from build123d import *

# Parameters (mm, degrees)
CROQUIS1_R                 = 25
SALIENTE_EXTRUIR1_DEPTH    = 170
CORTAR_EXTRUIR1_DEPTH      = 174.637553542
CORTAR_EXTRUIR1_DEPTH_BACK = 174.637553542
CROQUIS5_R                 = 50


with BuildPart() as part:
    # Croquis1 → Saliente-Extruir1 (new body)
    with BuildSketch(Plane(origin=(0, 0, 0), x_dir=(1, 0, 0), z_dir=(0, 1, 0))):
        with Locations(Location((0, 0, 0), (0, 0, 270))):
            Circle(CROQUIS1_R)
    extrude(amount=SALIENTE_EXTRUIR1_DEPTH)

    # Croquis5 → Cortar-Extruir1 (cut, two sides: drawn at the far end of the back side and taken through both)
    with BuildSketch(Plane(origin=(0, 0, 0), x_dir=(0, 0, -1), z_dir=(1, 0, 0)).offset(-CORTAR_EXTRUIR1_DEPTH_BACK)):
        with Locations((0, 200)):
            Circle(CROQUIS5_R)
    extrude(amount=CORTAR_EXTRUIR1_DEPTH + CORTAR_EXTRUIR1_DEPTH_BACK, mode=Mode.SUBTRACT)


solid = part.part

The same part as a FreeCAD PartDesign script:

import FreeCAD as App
import Part
import Sketcher
Q = App.Units.Quantity

doc = App.newDocument("Part")
body = doc.addObject("PartDesign::Body", "Body")

# Sketch on XZ plane
sketch1 = body.newObject("Sketcher::SketchObject", "Sketch")
sketch1.AttachmentSupport = (doc.getObject("XZ_Plane"), [""])
sketch1.MapMode = "FlatFace"
sketch1.addGeometry(Part.Circle(App.Vector(0, 0, 0), App.Vector(0, 0, 1), 25), False)
sketch1.addConstraint(Sketcher.Constraint("Coincident", 0, 3, -1, 1))
sketch1.addConstraint(Sketcher.Constraint("Diameter", 0, Q("50 mm")))
pad1 = body.newObject("PartDesign::Pad", "Pad")
pad1.Profile = sketch1
pad1.Length = 170
pad1.Reversed = True

# Sketch on YZ plane
sketch2 = body.newObject("Sketcher::SketchObject", "Sketch001")
sketch2.AttachmentSupport = (doc.getObject("YZ_Plane"), [""])
sketch2.MapMode = "FlatFace"
sketch2.addGeometry(Part.Circle(App.Vector(200, 0, 0), App.Vector(0, 0, 1), 50), False)
sketch2.addConstraint(Sketcher.Constraint("PointOnObject", 0, 3, -1))
sketch2.addConstraint(Sketcher.Constraint("Diameter", 0, Q("100 mm")))
sketch2.addConstraint(Sketcher.Constraint("DistanceX", -1, 1, 0, 3, Q("200 mm")))
pocket1 = body.newObject("PartDesign::Pocket", "Pocket")
pocket1.Profile = sketch2
pocket1.Type = "ThroughAll"
pocket1.Midplane = True

doc.recompute()
